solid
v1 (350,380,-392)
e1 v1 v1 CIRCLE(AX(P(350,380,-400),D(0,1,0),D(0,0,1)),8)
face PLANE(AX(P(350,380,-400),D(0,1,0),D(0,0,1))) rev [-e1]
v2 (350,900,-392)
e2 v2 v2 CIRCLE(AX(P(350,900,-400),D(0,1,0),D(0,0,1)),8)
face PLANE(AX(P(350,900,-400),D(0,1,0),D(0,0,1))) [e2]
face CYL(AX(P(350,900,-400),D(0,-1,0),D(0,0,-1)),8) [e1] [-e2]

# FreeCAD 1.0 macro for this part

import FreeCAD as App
import Part
import Sketcher
from FreeCAD import Vector

doc = App.newDocument("Part")
body = doc.addObject("PartDesign::Body", "Body")

# Sketch on XZ plane
sketch1 = body.newObject("Sketcher::SketchObject", "Sketch")
sketch1.AttachmentSupport = (doc.getObject("XZ_Plane"), [""])
sketch1.MapMode = "FlatFace"
sketch1.AttachmentOffset = App.Placement(Vector(0, 0, -380), App.Rotation())
sketch1.addGeometry(Part.Circle(Vector(350, -400, 0), Vector(0, 0, 1), 8), False)
sketch1.addConstraint([
    Sketcher.Constraint("Diameter", 0, 16.0),
    Sketcher.Constraint("DistanceX", -1, 1, 0, 3, 350.0),
    Sketcher.Constraint("DistanceY", 0, 3, -1, 1, 400.0),
])
pad1 = body.newObject("PartDesign::Pad", "Pad")
pad1.Profile = sketch1
pad1.Length = 520
pad1.Reversed = True

doc.recompute()
